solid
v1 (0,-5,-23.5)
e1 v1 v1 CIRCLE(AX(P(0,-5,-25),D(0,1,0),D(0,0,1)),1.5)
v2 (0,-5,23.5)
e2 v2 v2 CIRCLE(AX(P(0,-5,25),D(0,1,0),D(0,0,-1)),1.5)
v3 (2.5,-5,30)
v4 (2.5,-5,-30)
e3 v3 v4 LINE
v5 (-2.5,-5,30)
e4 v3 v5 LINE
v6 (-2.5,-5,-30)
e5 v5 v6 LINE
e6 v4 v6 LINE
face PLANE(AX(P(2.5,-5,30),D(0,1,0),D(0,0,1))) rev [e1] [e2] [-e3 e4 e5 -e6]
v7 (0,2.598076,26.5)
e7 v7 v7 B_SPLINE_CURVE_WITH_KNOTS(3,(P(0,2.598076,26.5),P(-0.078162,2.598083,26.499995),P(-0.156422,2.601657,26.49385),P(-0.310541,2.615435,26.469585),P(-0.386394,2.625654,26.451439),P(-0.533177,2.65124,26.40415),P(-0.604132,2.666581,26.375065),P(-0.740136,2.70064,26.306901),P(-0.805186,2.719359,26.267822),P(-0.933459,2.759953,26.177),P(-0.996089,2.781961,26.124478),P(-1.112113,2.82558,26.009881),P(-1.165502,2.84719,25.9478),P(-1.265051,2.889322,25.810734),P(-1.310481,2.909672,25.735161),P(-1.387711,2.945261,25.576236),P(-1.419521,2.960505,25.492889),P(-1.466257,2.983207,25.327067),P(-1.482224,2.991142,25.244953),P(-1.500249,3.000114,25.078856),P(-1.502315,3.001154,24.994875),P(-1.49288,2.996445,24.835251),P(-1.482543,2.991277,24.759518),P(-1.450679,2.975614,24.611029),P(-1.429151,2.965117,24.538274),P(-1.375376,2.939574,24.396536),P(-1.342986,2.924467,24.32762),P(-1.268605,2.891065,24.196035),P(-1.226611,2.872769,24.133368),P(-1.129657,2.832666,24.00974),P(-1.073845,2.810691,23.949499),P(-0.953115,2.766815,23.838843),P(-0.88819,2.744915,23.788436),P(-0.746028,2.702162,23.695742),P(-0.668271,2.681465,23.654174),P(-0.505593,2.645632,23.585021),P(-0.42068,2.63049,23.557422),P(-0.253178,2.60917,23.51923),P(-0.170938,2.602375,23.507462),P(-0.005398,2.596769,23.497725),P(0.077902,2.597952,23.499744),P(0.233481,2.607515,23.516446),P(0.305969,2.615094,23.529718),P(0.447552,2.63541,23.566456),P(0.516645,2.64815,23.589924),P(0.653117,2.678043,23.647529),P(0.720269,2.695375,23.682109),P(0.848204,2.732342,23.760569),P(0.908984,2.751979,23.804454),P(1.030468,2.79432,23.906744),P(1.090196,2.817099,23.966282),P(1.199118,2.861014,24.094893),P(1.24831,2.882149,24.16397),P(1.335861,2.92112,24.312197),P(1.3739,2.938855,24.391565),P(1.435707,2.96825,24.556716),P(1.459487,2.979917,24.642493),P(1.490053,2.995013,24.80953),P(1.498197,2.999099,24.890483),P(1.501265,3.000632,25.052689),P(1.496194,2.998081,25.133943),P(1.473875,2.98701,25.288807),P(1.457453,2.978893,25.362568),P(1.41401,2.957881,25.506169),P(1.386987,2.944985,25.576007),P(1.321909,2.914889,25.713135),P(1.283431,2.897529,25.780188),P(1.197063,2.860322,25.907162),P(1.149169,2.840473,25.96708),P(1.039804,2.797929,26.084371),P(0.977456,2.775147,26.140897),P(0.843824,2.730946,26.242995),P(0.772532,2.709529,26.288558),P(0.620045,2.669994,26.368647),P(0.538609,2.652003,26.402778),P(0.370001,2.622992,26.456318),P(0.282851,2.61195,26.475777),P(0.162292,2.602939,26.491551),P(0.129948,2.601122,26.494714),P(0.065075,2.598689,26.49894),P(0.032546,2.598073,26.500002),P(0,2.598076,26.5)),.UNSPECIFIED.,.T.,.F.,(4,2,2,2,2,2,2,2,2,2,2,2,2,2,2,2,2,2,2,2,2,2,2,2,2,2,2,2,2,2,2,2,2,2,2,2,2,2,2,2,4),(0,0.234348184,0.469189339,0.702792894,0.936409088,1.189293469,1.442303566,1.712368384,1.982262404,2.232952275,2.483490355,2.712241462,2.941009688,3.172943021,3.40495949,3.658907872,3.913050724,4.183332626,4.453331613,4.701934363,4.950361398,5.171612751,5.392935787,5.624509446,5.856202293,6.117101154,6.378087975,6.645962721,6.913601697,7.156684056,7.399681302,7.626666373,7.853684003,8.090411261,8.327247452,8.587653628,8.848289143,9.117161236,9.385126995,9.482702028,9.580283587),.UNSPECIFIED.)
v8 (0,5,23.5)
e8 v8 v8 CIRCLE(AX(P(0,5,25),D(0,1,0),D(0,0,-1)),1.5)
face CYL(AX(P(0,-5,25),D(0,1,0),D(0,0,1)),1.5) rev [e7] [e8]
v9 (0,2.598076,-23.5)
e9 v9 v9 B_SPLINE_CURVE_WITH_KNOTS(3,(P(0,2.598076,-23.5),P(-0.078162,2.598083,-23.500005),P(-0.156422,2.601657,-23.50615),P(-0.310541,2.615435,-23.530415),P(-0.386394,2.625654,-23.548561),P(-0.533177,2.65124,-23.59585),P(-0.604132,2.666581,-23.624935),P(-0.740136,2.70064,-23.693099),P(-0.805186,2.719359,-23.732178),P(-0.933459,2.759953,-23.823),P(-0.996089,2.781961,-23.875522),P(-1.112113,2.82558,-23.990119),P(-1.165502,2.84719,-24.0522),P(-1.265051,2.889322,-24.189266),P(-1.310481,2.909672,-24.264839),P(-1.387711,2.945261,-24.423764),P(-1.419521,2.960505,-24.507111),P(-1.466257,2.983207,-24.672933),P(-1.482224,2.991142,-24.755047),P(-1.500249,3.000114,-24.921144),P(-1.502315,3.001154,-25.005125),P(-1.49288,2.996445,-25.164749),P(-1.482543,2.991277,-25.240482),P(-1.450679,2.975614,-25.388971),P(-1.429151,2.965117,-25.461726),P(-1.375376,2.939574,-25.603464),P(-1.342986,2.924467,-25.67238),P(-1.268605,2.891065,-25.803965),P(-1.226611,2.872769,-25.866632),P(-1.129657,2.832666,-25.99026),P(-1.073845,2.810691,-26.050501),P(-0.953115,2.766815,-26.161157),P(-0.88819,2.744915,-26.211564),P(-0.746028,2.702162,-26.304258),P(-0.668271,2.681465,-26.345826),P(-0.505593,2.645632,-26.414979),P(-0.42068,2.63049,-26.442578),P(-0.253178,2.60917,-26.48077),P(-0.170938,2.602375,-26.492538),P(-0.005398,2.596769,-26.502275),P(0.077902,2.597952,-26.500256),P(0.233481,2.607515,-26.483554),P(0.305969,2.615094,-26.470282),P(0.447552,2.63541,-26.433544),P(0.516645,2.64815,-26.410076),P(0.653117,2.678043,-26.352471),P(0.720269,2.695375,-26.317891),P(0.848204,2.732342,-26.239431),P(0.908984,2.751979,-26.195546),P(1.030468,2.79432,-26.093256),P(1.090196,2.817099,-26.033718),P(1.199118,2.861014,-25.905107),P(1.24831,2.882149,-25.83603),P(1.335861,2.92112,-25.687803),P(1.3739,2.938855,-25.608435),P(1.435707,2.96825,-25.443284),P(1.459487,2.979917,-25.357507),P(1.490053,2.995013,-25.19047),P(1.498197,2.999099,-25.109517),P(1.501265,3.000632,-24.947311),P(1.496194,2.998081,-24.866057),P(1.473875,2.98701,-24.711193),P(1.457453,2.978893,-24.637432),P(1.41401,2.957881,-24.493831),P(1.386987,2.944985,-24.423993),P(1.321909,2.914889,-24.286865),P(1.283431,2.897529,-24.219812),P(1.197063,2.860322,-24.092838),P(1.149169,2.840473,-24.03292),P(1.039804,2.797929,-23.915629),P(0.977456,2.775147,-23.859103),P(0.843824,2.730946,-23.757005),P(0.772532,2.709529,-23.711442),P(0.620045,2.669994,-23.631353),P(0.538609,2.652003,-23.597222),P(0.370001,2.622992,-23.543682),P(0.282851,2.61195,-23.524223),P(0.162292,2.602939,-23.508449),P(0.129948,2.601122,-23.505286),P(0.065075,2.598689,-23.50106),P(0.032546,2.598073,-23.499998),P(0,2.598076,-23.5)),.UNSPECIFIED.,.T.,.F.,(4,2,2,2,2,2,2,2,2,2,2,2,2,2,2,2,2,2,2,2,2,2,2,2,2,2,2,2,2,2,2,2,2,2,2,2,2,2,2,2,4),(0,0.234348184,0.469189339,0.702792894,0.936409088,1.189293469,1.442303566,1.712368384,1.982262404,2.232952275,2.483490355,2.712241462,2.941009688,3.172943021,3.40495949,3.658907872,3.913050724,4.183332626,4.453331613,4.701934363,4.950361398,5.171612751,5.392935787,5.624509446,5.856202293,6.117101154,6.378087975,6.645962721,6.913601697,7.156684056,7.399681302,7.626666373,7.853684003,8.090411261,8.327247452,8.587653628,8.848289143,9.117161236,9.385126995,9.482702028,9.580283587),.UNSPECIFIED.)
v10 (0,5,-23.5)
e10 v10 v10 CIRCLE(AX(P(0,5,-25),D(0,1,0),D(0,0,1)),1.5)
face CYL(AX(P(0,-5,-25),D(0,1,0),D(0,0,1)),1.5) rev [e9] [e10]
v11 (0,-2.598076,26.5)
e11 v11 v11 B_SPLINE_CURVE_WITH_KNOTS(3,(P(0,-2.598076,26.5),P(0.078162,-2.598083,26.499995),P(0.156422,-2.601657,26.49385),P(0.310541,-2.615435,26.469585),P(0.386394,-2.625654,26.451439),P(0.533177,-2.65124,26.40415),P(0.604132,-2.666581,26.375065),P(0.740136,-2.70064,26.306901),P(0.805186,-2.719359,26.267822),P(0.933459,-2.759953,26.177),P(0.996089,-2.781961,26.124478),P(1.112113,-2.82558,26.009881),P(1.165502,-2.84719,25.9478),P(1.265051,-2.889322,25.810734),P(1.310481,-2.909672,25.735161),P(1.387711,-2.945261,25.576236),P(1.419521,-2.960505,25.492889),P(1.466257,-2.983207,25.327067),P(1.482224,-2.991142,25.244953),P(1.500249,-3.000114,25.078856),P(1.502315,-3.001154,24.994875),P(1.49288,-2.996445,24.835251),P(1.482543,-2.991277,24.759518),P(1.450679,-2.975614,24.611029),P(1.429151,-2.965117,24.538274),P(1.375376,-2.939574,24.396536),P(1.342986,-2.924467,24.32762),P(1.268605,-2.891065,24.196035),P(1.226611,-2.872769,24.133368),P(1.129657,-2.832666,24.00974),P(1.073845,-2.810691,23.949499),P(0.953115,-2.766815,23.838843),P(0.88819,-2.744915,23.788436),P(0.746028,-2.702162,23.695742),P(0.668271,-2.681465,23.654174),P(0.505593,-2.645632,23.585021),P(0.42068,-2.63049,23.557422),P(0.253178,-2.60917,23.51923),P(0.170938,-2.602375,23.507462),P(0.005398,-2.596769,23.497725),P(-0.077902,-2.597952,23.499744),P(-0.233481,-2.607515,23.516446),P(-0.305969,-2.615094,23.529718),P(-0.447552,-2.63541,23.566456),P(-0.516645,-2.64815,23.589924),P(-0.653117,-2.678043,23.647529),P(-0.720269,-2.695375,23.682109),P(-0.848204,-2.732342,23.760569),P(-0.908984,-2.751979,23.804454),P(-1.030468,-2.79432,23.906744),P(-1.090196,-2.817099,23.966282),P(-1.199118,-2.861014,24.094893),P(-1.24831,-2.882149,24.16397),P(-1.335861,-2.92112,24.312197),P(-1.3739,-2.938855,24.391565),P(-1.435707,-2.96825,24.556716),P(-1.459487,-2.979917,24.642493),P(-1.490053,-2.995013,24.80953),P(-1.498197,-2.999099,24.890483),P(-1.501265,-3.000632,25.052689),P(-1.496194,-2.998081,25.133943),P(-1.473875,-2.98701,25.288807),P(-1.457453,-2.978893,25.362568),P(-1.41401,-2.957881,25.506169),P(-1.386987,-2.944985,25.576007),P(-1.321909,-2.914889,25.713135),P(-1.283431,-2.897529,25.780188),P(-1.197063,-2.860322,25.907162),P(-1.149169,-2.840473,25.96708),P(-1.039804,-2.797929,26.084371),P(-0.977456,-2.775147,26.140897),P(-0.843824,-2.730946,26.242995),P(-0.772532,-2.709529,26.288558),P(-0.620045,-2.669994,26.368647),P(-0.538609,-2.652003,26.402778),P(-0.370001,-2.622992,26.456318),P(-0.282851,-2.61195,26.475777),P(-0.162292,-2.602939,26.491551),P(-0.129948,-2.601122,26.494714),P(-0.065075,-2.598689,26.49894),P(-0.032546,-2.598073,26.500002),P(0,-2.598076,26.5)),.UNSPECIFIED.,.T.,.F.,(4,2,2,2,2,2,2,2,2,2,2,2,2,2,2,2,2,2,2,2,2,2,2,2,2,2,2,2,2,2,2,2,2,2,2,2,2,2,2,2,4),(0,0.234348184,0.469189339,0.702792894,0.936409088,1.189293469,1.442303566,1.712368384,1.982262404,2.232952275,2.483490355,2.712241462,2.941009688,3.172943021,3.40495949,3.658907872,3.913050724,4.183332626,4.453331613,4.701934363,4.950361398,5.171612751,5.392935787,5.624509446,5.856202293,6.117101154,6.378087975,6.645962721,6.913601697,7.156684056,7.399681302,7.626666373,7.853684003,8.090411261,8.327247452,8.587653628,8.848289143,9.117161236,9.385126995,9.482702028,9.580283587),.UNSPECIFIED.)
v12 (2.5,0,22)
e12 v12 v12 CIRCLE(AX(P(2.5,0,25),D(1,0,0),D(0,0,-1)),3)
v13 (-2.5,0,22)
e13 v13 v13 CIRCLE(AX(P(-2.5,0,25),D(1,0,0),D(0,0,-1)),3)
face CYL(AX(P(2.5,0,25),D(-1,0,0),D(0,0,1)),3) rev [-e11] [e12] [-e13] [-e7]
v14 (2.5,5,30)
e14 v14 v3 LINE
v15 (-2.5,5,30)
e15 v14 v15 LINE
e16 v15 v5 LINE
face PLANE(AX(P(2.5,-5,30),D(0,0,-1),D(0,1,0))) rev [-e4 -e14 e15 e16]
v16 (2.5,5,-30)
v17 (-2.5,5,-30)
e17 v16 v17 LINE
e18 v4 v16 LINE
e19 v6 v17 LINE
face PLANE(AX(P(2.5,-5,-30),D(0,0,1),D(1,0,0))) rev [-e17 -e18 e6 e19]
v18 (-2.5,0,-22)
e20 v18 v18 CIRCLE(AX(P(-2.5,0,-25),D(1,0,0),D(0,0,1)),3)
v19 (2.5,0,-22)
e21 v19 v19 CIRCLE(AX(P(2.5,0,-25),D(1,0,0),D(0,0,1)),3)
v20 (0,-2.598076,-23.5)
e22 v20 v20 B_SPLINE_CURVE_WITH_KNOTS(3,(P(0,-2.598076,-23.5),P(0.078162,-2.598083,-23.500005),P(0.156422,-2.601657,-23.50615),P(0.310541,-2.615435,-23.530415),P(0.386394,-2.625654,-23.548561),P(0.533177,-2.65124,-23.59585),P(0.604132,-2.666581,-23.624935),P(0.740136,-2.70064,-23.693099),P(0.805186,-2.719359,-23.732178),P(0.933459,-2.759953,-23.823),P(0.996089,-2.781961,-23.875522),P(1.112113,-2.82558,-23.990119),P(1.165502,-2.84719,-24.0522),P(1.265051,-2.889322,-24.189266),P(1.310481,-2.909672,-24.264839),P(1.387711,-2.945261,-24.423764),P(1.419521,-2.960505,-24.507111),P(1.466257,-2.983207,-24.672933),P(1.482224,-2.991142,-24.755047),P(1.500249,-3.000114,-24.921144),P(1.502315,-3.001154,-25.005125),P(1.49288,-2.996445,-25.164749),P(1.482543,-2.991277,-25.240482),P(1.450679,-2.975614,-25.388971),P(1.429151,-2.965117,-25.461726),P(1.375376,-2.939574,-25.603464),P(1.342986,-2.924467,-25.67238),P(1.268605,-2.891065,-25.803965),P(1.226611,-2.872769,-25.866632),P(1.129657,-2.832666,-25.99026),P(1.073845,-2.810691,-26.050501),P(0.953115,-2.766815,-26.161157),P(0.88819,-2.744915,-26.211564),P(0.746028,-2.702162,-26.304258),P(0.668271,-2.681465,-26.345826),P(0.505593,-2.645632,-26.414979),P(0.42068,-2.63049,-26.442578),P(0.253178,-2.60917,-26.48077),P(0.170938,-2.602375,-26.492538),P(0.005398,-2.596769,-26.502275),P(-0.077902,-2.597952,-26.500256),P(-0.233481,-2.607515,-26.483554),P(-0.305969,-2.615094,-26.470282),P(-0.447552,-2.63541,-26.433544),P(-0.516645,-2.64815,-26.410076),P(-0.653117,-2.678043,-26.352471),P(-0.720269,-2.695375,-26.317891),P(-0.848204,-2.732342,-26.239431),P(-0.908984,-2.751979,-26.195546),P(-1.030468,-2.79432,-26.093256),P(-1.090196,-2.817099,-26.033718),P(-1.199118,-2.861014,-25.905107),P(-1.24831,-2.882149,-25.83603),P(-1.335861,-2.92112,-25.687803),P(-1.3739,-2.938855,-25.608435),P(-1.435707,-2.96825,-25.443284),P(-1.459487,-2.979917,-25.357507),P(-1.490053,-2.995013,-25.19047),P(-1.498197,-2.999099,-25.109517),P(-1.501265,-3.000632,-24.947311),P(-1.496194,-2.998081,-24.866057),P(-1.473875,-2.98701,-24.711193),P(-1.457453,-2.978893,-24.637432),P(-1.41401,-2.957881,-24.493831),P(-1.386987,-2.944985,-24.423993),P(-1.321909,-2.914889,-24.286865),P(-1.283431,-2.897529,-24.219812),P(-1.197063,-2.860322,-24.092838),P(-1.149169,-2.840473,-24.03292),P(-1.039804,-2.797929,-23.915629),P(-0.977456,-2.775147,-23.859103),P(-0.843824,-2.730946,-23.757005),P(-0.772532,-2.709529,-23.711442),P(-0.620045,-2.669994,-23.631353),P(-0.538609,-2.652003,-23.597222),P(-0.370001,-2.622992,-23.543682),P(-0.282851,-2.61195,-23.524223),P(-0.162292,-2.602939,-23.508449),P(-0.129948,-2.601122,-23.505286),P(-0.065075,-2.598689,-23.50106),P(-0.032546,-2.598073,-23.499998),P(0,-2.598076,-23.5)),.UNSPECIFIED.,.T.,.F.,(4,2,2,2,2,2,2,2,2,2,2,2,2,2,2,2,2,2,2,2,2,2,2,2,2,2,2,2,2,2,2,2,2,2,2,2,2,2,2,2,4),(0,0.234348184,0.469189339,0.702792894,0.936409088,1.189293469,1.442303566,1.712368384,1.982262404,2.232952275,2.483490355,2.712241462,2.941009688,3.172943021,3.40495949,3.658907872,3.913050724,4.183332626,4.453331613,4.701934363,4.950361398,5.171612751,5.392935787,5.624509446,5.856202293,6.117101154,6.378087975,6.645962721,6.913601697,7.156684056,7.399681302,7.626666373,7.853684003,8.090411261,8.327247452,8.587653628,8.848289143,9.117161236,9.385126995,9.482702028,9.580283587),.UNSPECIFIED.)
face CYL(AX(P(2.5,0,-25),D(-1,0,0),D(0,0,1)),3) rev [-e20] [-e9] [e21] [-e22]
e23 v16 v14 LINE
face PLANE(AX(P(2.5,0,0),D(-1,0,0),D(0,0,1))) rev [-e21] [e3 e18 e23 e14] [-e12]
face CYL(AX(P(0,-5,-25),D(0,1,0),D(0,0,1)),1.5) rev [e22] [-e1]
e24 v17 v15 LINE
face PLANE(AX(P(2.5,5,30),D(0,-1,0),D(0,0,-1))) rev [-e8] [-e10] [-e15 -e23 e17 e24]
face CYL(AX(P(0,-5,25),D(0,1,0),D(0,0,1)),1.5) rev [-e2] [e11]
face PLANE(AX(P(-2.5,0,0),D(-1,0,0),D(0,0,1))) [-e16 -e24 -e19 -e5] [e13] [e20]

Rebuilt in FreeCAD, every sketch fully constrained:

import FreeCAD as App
import Part
import Sketcher
from FreeCAD import Vector
Q = App.Units.Quantity


def add_polygon(sketch, points):
    """Adds a closed chain of lines whose ends are joined by coincident constraints."""
    first, n = sketch.GeometryCount, len(points)
    for a, b in zip(points, points[1:] + points[:1]):
        sketch.addGeometry(Part.LineSegment(App.Vector(*a, 0), App.Vector(*b, 0)), False)
    for i in range(n):
        sketch.addConstraint(Sketcher.Constraint("Coincident", first + i, 2, first + (i + 1) % n, 1))

doc = App.newDocument("Part")
body = doc.addObject("PartDesign::Body", "Body")

# Sketch on YZ plane
sketch1 = doc.addObject("Sketcher::SketchObject", "Sketch")
body.addObject(sketch1)
sketch1.AttachmentSupport = (doc.YZ_Plane, [""])
sketch1.MapMode = "FlatFace"
add_polygon(sketch1, [(5, 30), (-5, 30), (-5, -30), (5, -30)])  # lines 0-3
sketch1.addGeometry(Part.Circle(Vector(0, 25, 0), Vector(0, 0, 1), 3), False)  # 4
sketch1.addGeometry(Part.Circle(Vector(0, -25, 0), Vector(0, 0, 1), 3), False)  # 5
sketch1.addConstraint(Sketcher.Constraint("Horizontal", 0))
sketch1.addConstraint(Sketcher.Constraint("Vertical", 1))
sketch1.addConstraint(Sketcher.Constraint("Horizontal", 2))
sketch1.addConstraint(Sketcher.Constraint("Vertical", 3))
sketch1.addConstraint(Sketcher.Constraint("Equal", 4, 5))
sketch1.addConstraint(Sketcher.Constraint("Symmetric", 4, 3, 5, 3, -1, 1))
sketch1.addConstraint(Sketcher.Constraint("Symmetric", 0, 2, 2, 2, -1, 1))
sketch1.addConstraint(Sketcher.Constraint("PointOnObject", 4, 3, -2))
sketch1.addConstraint(Sketcher.Constraint("Diameter", 4, Q("6 mm")))
sketch1.addConstraint(Sketcher.Constraint("DistanceX", 0, 2, 0, 1, Q("10 mm")))
sketch1.addConstraint(Sketcher.Constraint("DistanceY", 1, 2, 1, 1, Q("60 mm")))
sketch1.addConstraint(Sketcher.Constraint("DistanceY", -1, 1, 4, 3, Q("25 mm")))
pad1 = doc.addObject("PartDesign::Pad", "Pad")
body.addObject(pad1)
pad1.Profile = sketch1
pad1.Length = 5
pad1.Midplane = True

# Sketch on XZ plane
sketch2 = doc.addObject("Sketcher::SketchObject", "Sketch001")
body.addObject(sketch2)
sketch2.AttachmentSupport = (doc.XZ_Plane, [""])
sketch2.MapMode = "FlatFace"
sketch2.addGeometry(Part.Circle(Vector(0, -25, 0), Vector(0, 0, 1), 1.5), False)
sketch2.addGeometry(Part.Circle(Vector(0, 25, 0), Vector(0, 0, 1), 1.5), False)
sketch2.addConstraint(Sketcher.Constraint("Equal", 0, 1))
sketch2.addConstraint(Sketcher.Constraint("Symmetric", 0, 3, 1, 3, -1, 1))
sketch2.addConstraint(Sketcher.Constraint("PointOnObject", 0, 3, -2))
sketch2.addConstraint(Sketcher.Constraint("Diameter", 0, Q("3 mm")))
sketch2.addConstraint(Sketcher.Constraint("DistanceY", 0, 3, -1, 1, Q("25 mm")))
pocket1 = doc.addObject("PartDesign::Pocket", "Pocket")
body.addObject(pocket1)
pocket1.Profile = sketch2
pocket1.Type = "ThroughAll"
pocket1.Midplane = True

doc.recompute()
